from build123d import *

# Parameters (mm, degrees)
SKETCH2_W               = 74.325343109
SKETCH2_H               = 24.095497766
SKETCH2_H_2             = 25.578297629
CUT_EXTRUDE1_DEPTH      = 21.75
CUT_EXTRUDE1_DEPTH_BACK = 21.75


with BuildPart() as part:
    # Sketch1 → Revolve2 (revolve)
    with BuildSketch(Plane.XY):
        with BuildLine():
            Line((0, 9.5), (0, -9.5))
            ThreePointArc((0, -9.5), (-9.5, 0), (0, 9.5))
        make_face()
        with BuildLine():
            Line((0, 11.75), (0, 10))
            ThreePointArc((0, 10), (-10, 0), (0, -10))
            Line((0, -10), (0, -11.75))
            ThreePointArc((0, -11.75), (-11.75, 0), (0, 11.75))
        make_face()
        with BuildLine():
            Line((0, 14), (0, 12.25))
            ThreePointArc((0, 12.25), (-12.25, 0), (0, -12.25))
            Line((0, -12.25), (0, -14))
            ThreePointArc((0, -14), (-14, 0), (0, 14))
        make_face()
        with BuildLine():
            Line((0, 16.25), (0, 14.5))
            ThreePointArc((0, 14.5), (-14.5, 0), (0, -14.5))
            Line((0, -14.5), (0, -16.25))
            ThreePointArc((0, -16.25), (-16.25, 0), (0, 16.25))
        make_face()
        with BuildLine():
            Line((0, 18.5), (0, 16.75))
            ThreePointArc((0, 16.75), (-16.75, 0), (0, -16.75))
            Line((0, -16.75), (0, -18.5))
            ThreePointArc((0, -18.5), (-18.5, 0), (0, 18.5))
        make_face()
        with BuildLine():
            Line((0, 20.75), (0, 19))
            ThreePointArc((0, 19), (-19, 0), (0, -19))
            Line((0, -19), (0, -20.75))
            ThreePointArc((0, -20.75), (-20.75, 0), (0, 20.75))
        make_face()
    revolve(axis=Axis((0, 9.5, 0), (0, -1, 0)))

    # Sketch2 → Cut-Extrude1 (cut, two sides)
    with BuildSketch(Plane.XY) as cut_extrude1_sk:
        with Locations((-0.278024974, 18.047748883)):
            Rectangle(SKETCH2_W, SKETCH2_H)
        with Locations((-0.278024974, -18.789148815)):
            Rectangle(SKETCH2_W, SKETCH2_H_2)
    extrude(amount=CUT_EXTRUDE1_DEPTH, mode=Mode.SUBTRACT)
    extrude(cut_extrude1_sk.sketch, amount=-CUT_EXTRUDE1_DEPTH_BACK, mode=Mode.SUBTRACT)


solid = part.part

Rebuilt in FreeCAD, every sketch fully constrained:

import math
import FreeCAD as App
import Part
import Sketcher
Q = App.Units.Quantity

doc = App.newDocument("Part")
body = doc.addObject("PartDesign::Body", "Body")
body.AllowCompound = True

# Sketch on XY plane
sketch1 = doc.addObject("Sketcher::SketchObject", "Sketch")
body.addObject(sketch1)
sketch1.AttachmentSupport = (doc.XY_Plane, [""])
sketch1.MapMode = "FlatFace"
sketch1.addGeometry(Part.LineSegment(App.Vector(0, -9.5, 0), App.Vector(0, 9.5, 0)), False)
sketch1.addGeometry(Part.ArcOfCircle(Part.Circle(App.Vector(0, 0, 0), App.Vector(0, 0, 1), 9.5), math.radians(90), math.radians(270)), False)
sketch1.addGeometry(Part.LineSegment(App.Vector(0, 10, 0), App.Vector(0, 11.8, 0)), False)
sketch1.addGeometry(Part.ArcOfCircle(Part.Circle(App.Vector(0, 0, 0), App.Vector(0, 0, 1), 11.8), math.radians(90), math.radians(270)), False)
sketch1.addGeometry(Part.LineSegment(App.Vector(0, -11.8, 0), App.Vector(0, -10, 0)), False)
sketch1.addGeometry(Part.ArcOfCircle(Part.Circle(App.Vector(0, 0, 0), App.Vector(0, 0, 1), 10), math.radians(90), math.radians(270)), False)
sketch1.addGeometry(Part.LineSegment(App.Vector(0, 12.2, 0), App.Vector(0, 14, 0)), False)
sketch1.addGeometry(Part.ArcOfCircle(Part.Circle(App.Vector(0, 0, 0), App.Vector(0, 0, 1), 14), math.radians(90), math.radians(270)), False)
sketch1.addGeometry(Part.LineSegment(App.Vector(0, -14, 0), App.Vector(0, -12.2, 0)), False)
sketch1.addGeometry(Part.ArcOfCircle(Part.Circle(App.Vector(0, 0, 0), App.Vector(0, 0, 1), 12.2), math.radians(90), math.radians(270)), False)
sketch1.addGeometry(Part.LineSegment(App.Vector(0, 14.5, 0), App.Vector(0, 16.2, 0)), False)
sketch1.addGeometry(Part.ArcOfCircle(Part.Circle(App.Vector(0, 0, 0), App.Vector(0, 0, 1), 16.2), math.radians(90), math.radians(270)), False)
sketch1.addGeometry(Part.LineSegment(App.Vector(0, -16.2, 0), App.Vector(0, -14.5, 0)), False)
sketch1.addGeometry(Part.ArcOfCircle(Part.Circle(App.Vector(0, 0, 0), App.Vector(0, 0, 1), 14.5), math.radians(90), math.radians(270)), False)
sketch1.addGeometry(Part.LineSegment(App.Vector(0, 16.8, 0), App.Vector(0, 18.5, 0)), False)
sketch1.addGeometry(Part.ArcOfCircle(Part.Circle(App.Vector(0, 0, 0), App.Vector(0, 0, 1), 18.5), math.radians(90), math.radians(270)), False)
sketch1.addGeometry(Part.LineSegment(App.Vector(0, -18.5, 0), App.Vector(0, -16.8, 0)), False)
sketch1.addGeometry(Part.ArcOfCircle(Part.Circle(App.Vector(0, 0, 0), App.Vector(0, 0, 1), 16.8), math.radians(90), math.radians(270)), False)
sketch1.addGeometry(Part.LineSegment(App.Vector(0, 19, 0), App.Vector(0, 20.8, 0)), False)
sketch1.addGeometry(Part.ArcOfCircle(Part.Circle(App.Vector(0, 0, 0), App.Vector(0, 0, 1), 20.8), math.radians(90), math.radians(270)), False)
sketch1.addGeometry(Part.LineSegment(App.Vector(0, -20.8, 0), App.Vector(0, -19, 0)), False)
sketch1.addGeometry(Part.ArcOfCircle(Part.Circle(App.Vector(0, 0, 0), App.Vector(0, 0, 1), 19), math.radians(90), math.radians(270)), False)
sketch1.addConstraint(Sketcher.Constraint("Coincident", 0, 1, 1, 2))
sketch1.addConstraint(Sketcher.Constraint("Coincident", 1, 1, 0, 2))
sketch1.addConstraint(Sketcher.Constraint("Coincident", 2, 2, 3, 1))
sketch1.addConstraint(Sketcher.Constraint("Coincident", 3, 2, 4, 1))
sketch1.addConstraint(Sketcher.Constraint("Coincident", 4, 2, 5, 2))
sketch1.addConstraint(Sketcher.Constraint("Coincident", 5, 1, 2, 1))
sketch1.addConstraint(Sketcher.Constraint("Coincident", 6, 2, 7, 1))
sketch1.addConstraint(Sketcher.Constraint("Coincident", 7, 2, 8, 1))
sketch1.addConstraint(Sketcher.Constraint("Coincident", 8, 2, 9, 2))
sketch1.addConstraint(Sketcher.Constraint("Coincident", 9, 1, 6, 1))
sketch1.addConstraint(Sketcher.Constraint("Coincident", 10, 2, 11, 1))
sketch1.addConstraint(Sketcher.Constraint("Coincident", 11, 2, 12, 1))
sketch1.addConstraint(Sketcher.Constraint("Coincident", 12, 2, 13, 2))
sketch1.addConstraint(Sketcher.Constraint("Coincident", 13, 1, 10, 1))
sketch1.addConstraint(Sketcher.Constraint("Coincident", 14, 2, 15, 1))
sketch1.addConstraint(Sketcher.Constraint("Coincident", 15, 2, 16, 1))
sketch1.addConstraint(Sketcher.Constraint("Coincident", 16, 2, 17, 2))
sketch1.addConstraint(Sketcher.Constraint("Coincident", 17, 1, 14, 1))
sketch1.addConstraint(Sketcher.Constraint("Coincident", 18, 2, 19, 1))
sketch1.addConstraint(Sketcher.Constraint("Coincident", 19, 2, 20, 1))
sketch1.addConstraint(Sketcher.Constraint("Coincident", 20, 2, 21, 2))
sketch1.addConstraint(Sketcher.Constraint("Coincident", 21, 1, 18, 1))
sketch1.addConstraint(Sketcher.Constraint("Vertical", 0))
sketch1.addConstraint(Sketcher.Constraint("Vertical", 2))
sketch1.addConstraint(Sketcher.Constraint("Vertical", 4))
sketch1.addConstraint(Sketcher.Constraint("Vertical", 6))
sketch1.addConstraint(Sketcher.Constraint("Vertical", 8))
sketch1.addConstraint(Sketcher.Constraint("Vertical", 10))
sketch1.addConstraint(Sketcher.Constraint("Vertical", 12))
sketch1.addConstraint(Sketcher.Constraint("Vertical", 14))
sketch1.addConstraint(Sketcher.Constraint("Vertical", 16))
sketch1.addConstraint(Sketcher.Constraint("Vertical", 18))
sketch1.addConstraint(Sketcher.Constraint("Vertical", 20))
sketch1.addConstraint(Sketcher.Constraint("Coincident", 1, 3, -1, 1))
sketch1.addConstraint(Sketcher.Constraint("Coincident", 3, 3, -1, 1))
sketch1.addConstraint(Sketcher.Constraint("Coincident", 5, 3, -1, 1))
sketch1.addConstraint(Sketcher.Constraint("Coincident", 7, 3, -1, 1))
sketch1.addConstraint(Sketcher.Constraint("Coincident", 9, 3, -1, 1))
sketch1.addConstraint(Sketcher.Constraint("Coincident", 11, 3, -1, 1))
sketch1.addConstraint(Sketcher.Constraint("Coincident", 13, 3, -1, 1))
sketch1.addConstraint(Sketcher.Constraint("Coincident", 15, 3, -1, 1))
sketch1.addConstraint(Sketcher.Constraint("Coincident", 17, 3, -1, 1))
sketch1.addConstraint(Sketcher.Constraint("Coincident", 19, 3, -1, 1))
sketch1.addConstraint(Sketcher.Constraint("Coincident", 21, 3, -1, 1))
sketch1.addConstraint(Sketcher.Constraint("PointOnObject", 0, 1, -2))
sketch1.addConstraint(Sketcher.Constraint("PointOnObject", 2, 2, -2))
sketch1.addConstraint(Sketcher.Constraint("PointOnObject", 3, 2, -2))
sketch1.addConstraint(Sketcher.Constraint("PointOnObject", 6, 2, -2))
sketch1.addConstraint(Sketcher.Constraint("PointOnObject", 7, 2, -2))
sketch1.addConstraint(Sketcher.Constraint("PointOnObject", 10, 2, -2))
sketch1.addConstraint(Sketcher.Constraint("PointOnObject", 11, 2, -2))
sketch1.addConstraint(Sketcher.Constraint("PointOnObject", 14, 2, -2))
sketch1.addConstraint(Sketcher.Constraint("PointOnObject", 15, 2, -2))
sketch1.addConstraint(Sketcher.Constraint("PointOnObject", 18, 2, -2))
sketch1.addConstraint(Sketcher.Constraint("PointOnObject", 19, 2, -2))
sketch1.addConstraint(Sketcher.Constraint("Equal", 4, 6))
sketch1.addConstraint(Sketcher.Constraint("Equal", 8, 10))
sketch1.addConstraint(Sketcher.Constraint("Equal", 12, 14))
sketch1.addConstraint(Sketcher.Constraint("Equal", 16, 18))
sketch1.addConstraint(Sketcher.Constraint("Radius", 5, Q("10 mm")))
sketch1.addConstraint(Sketcher.Constraint("Radius", 7, Q("14 mm")))
sketch1.addConstraint(Sketcher.Constraint("Radius", 21, Q("19 mm")))
sketch1.addConstraint(Sketcher.Constraint("Radius", 1, Q("9.5 mm")))
sketch1.addConstraint(Sketcher.Constraint("Radius", 13, Q("14.5 mm")))
sketch1.addConstraint(Sketcher.Constraint("Radius", 15, Q("18.5 mm")))
sketch1.addConstraint(Sketcher.Constraint("Radius", 3, Q("11.75 mm")))
revolution = doc.addObject("PartDesign::Revolution", "Revolution")
body.addObject(revolution)
revolution.Profile = sketch1
revolution.ReferenceAxis = (sketch1, ["V_Axis"])
revolution.Angle = 360

# Sketch on XY plane
sketch2 = doc.addObject("Sketcher::SketchObject", "Sketch001")
body.addObject(sketch2)
sketch2.AttachmentSupport = (doc.XY_Plane, [""])
sketch2.MapMode = "FlatFace"
sketch2.addGeometry(Part.LineSegment(App.Vector(-37, 30, 0), App.Vector(-37, 6, 0)), False)
sketch2.addGeometry(Part.LineSegment(App.Vector(-37, 6, 0), App.Vector(37, 6, 0)), False)
sketch2.addGeometry(Part.LineSegment(App.Vector(37, 6, 0), App.Vector(37, 30, 0)), False)
sketch2.addGeometry(Part.LineSegment(App.Vector(37, 30, 0), App.Vector(-37, 30, 0)), False)
sketch2.addGeometry(Part.LineSegment(App.Vector(-37, -6, 0), App.Vector(-37, -32, 0)), False)
sketch2.addGeometry(Part.LineSegment(App.Vector(-37, -32, 0), App.Vector(37, -32, 0)), False)
sketch2.addGeometry(Part.LineSegment(App.Vector(37, -32, 0), App.Vector(37, -6, 0)), False)
sketch2.addGeometry(Part.LineSegment(App.Vector(37, -6, 0), App.Vector(-37, -6, 0)), False)
sketch2.addConstraint(Sketcher.Constraint("Coincident", 0, 2, 1, 1))
sketch2.addConstraint(Sketcher.Constraint("Coincident", 1, 2, 2, 1))
sketch2.addConstraint(Sketcher.Constraint("Coincident", 2, 2, 3, 1))
sketch2.addConstraint(Sketcher.Constraint("Coincident", 3, 2, 0, 1))
sketch2.addConstraint(Sketcher.Constraint("Coincident", 4, 2, 5, 1))
sketch2.addConstraint(Sketcher.Constraint("Coincident", 5, 2, 6, 1))
sketch2.addConstraint(Sketcher.Constraint("Coincident", 6, 2, 7, 1))
sketch2.addConstraint(Sketcher.Constraint("Coincident", 7, 2, 4, 1))
sketch2.addConstraint(Sketcher.Constraint("Vertical", 0))
sketch2.addConstraint(Sketcher.Constraint("Horizontal", 1))
sketch2.addConstraint(Sketcher.Constraint("Vertical", 2))
sketch2.addConstraint(Sketcher.Constraint("Horizontal", 3))
sketch2.addConstraint(Sketcher.Constraint("Vertical", 4))
sketch2.addConstraint(Sketcher.Constraint("Horizontal", 5))
sketch2.addConstraint(Sketcher.Constraint("Vertical", 6))
sketch2.addConstraint(Sketcher.Constraint("Horizontal", 7))
sketch2.addConstraint(Sketcher.Constraint("Symmetric", 1, 2, 6, 2, -1))
sketch2.addConstraint(Sketcher.Constraint("Vertical", 3, 2, 4, 2))
sketch2.addConstraint(Sketcher.Constraint("DistanceY", -1, 1, 0, 2, Q("6 mm")))
sketch2.addConstraint(Sketcher.Constraint("DistanceX", 1, 1, 1, 2, Q("74.325343 mm")))
sketch2.addConstraint(Sketcher.Constraint("DistanceY", 0, 2, 0, 1, Q("24.095498 mm")))
sketch2.addConstraint(Sketcher.Constraint("DistanceY", 4, 2, 4, 1, Q("25.578298 mm")))
sketch2.addConstraint(Sketcher.Constraint("DistanceX", 0, 2, -1, 1, Q("37.440697 mm")))
pocket1 = doc.addObject("PartDesign::Pocket", "Pocket")
body.addObject(pocket1)
pocket1.Profile = sketch2
pocket1.Type = "ThroughAll"
pocket1.Midplane = True

doc.recompute()
